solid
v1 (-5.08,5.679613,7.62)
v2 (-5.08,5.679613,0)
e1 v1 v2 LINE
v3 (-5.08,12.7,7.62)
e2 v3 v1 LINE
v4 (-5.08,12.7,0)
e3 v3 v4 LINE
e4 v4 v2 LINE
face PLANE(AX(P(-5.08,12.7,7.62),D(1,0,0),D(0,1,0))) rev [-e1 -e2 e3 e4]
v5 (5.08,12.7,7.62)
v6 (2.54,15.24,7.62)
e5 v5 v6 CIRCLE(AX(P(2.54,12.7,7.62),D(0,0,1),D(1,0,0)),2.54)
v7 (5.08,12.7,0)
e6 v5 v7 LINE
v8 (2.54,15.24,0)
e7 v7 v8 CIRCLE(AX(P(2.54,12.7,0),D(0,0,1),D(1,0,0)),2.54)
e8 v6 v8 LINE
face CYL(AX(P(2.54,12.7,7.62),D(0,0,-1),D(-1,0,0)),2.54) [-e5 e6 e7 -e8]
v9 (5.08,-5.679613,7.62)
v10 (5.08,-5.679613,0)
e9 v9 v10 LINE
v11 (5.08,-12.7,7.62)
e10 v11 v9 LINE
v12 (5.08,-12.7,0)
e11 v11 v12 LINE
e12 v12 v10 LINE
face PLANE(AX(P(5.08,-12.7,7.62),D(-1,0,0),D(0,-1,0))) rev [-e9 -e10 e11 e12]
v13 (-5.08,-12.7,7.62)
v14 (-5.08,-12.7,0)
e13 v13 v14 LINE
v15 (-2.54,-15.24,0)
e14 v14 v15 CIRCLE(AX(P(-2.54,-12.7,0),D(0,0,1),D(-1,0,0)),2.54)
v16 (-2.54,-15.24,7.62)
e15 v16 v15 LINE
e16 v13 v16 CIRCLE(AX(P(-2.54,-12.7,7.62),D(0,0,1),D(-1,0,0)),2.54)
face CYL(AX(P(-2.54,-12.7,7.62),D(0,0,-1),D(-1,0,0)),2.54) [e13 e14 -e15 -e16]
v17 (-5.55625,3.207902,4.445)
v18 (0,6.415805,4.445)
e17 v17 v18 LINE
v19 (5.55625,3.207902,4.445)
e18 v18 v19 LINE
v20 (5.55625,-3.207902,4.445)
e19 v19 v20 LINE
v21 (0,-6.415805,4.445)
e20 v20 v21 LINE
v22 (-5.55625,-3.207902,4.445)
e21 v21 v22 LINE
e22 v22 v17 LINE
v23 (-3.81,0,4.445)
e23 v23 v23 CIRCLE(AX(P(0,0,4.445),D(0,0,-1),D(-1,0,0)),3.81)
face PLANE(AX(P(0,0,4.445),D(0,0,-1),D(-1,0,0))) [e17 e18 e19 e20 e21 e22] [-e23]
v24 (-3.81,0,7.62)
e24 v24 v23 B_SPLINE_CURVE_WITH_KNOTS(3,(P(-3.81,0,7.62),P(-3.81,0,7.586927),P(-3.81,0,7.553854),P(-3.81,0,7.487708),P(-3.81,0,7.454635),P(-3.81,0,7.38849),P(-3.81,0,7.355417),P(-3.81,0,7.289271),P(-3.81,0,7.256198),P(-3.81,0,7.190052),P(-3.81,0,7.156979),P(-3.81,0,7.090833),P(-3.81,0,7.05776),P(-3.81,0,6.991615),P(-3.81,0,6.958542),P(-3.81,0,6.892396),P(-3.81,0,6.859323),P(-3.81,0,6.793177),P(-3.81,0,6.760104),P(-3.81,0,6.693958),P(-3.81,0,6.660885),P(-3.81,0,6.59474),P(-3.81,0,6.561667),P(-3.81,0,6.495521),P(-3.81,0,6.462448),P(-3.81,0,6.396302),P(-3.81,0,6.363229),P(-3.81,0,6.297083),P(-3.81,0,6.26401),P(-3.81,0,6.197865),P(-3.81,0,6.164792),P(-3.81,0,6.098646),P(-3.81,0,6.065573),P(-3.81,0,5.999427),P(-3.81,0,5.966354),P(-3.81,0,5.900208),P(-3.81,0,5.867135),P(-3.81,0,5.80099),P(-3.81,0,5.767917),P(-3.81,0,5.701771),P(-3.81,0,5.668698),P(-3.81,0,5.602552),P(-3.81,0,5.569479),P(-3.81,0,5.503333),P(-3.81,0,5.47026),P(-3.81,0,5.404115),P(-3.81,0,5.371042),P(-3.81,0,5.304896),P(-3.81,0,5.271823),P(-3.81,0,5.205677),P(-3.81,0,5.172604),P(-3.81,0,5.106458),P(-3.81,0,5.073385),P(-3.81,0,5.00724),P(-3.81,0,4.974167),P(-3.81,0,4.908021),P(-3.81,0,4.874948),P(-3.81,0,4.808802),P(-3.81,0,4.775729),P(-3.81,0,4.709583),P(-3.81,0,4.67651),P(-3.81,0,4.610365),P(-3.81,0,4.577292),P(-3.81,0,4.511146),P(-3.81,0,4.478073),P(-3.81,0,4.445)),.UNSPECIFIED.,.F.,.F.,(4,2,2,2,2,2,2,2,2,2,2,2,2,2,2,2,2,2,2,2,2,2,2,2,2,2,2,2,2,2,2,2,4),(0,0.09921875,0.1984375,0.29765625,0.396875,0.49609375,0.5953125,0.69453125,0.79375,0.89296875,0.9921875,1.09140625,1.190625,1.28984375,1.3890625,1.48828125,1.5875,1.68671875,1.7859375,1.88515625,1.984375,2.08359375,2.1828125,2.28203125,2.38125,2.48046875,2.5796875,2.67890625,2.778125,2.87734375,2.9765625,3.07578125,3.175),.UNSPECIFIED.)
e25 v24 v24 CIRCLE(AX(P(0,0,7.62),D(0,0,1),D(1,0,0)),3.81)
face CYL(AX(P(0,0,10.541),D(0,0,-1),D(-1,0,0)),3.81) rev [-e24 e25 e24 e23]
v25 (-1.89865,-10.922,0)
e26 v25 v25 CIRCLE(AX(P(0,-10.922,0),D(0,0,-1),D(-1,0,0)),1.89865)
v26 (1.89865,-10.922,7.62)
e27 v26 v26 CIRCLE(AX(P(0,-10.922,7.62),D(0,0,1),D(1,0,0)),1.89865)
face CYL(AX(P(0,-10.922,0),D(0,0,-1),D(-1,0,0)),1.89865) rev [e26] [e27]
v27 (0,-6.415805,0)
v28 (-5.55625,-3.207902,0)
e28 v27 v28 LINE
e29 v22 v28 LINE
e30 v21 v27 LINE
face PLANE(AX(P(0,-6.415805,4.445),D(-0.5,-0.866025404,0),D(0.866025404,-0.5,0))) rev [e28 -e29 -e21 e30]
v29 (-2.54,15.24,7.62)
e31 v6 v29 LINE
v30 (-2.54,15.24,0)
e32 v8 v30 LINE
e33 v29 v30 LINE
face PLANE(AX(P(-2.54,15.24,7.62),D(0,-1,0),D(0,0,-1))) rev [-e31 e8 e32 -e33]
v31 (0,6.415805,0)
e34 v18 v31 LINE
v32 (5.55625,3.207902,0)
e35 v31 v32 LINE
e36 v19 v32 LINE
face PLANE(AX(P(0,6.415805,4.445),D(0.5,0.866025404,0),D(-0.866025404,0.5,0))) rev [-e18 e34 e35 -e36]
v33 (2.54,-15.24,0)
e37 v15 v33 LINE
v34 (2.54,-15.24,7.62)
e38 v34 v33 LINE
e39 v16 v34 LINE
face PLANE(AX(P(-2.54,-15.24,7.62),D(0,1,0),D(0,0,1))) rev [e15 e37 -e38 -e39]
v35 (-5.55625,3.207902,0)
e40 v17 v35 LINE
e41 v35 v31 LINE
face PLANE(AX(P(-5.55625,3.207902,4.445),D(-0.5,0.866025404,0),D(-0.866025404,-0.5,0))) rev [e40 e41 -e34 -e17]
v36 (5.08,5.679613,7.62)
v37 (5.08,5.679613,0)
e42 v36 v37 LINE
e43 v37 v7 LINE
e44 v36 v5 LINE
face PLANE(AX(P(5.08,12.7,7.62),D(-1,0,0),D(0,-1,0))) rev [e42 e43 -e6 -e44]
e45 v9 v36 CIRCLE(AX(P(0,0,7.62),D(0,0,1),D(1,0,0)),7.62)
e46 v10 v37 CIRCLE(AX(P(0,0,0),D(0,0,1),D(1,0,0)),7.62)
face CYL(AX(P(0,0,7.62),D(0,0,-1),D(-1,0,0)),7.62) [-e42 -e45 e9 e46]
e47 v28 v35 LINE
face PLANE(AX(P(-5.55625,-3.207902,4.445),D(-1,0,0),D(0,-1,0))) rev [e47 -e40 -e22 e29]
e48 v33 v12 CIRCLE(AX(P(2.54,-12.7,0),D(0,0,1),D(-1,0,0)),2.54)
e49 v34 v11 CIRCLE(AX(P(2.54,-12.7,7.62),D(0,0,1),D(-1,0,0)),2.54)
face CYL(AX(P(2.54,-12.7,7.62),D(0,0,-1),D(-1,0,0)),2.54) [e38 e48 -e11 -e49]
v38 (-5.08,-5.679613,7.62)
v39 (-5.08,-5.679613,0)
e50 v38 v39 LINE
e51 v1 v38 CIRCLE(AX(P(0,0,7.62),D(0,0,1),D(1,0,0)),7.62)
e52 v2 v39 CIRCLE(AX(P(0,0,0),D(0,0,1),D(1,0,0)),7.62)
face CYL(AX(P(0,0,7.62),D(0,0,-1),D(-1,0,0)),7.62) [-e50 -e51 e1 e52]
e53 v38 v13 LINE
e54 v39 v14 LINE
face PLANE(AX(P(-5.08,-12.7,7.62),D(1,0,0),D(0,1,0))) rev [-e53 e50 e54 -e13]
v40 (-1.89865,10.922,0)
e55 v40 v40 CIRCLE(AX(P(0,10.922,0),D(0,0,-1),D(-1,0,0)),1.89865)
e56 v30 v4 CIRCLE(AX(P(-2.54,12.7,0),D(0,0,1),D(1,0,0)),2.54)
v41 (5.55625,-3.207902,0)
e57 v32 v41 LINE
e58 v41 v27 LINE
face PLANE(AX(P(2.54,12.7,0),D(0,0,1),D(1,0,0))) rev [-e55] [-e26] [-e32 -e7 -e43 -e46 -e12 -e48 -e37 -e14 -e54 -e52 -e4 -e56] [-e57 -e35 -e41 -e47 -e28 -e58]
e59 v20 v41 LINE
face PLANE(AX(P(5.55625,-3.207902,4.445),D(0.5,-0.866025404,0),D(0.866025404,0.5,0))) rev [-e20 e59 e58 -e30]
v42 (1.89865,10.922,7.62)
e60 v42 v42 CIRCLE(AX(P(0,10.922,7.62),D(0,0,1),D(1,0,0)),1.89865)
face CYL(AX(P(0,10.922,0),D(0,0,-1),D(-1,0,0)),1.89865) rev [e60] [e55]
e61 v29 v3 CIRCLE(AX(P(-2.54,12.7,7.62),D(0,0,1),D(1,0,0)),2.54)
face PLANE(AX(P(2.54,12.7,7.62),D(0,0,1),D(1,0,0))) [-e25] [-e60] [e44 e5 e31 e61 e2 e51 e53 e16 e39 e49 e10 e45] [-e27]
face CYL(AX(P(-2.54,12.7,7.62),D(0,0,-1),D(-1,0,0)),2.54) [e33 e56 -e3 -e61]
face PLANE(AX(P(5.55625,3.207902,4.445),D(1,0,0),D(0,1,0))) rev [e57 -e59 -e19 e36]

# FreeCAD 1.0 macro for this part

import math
import FreeCAD as App
import Part
import Sketcher

V = App.Vector
Q = App.Units.Quantity

doc = App.newDocument("Part")
body = doc.addObject("PartDesign::Body", "Body")

# Sketch on XY plane
sketch1 = doc.addObject("Sketcher::SketchObject", "Sketch")
body.addObject(sketch1)
sketch1.AttachmentSupport = (doc.XY_Plane, [""])
sketch1.MapMode = "FlatFace"
sketch1.addGeometry(Part.LineSegment(V(-5.1, 12.7, 0), V(-5.1, 5.7, 0)), False)
sketch1.addGeometry(Part.ArcOfCircle(Part.Circle(V(0, 0, 0), V(0, 0, 1), 7.6), math.radians(132), math.radians(228)), False)
sketch1.addGeometry(Part.LineSegment(V(-5.1, -5.7, 0), V(-5.1, -12.7, 0)), False)
sketch1.addGeometry(Part.ArcOfCircle(Part.Circle(V(-2.5, -12.7, 0), V(0, 0, 1), 2.5), math.radians(-180), math.radians(-90)), False)
sketch1.addGeometry(Part.LineSegment(V(-2.5, -15.2, 0), V(2.5, -15.2, 0)), False)
sketch1.addGeometry(Part.ArcOfCircle(Part.Circle(V(2.5, -12.7, 0), V(0, 0, 1), 2.5), math.radians(-90), math.radians(0)), False)
sketch1.addGeometry(Part.LineSegment(V(5.1, -12.7, 0), V(5.1, -5.7, 0)), False)
sketch1.addGeometry(Part.ArcOfCircle(Part.Circle(V(0, 0, 0), V(0, 0, 1), 7.6), math.radians(-48), math.radians(48)), False)
sketch1.addGeometry(Part.LineSegment(V(5.1, 5.7, 0), V(5.1, 12.7, 0)), False)
sketch1.addGeometry(Part.ArcOfCircle(Part.Circle(V(2.5, 12.7, 0), V(0, 0, 1), 2.5), math.radians(0), math.radians(90)), False)
sketch1.addGeometry(Part.LineSegment(V(2.5, 15.2, 0), V(-2.5, 15.2, 0)), False)
sketch1.addGeometry(Part.ArcOfCircle(Part.Circle(V(-2.5, 12.7, 0), V(0, 0, 1), 2.5), math.radians(90), math.radians(180)), False)
sketch1.addConstraint(Sketcher.Constraint("Coincident", 0, 2, 1, 1))
sketch1.addConstraint(Sketcher.Constraint("Coincident", 1, 2, 2, 1))
sketch1.addConstraint(Sketcher.Constraint("Tangent", 2, 2, 3, 1))
sketch1.addConstraint(Sketcher.Constraint("Tangent", 3, 2, 4, 1))
sketch1.addConstraint(Sketcher.Constraint("Tangent", 4, 2, 5, 1))
sketch1.addConstraint(Sketcher.Constraint("Tangent", 5, 2, 6, 1))
sketch1.addConstraint(Sketcher.Constraint("Coincident", 6, 2, 7, 1))
sketch1.addConstraint(Sketcher.Constraint("Coincident", 7, 2, 8, 1))
sketch1.addConstraint(Sketcher.Constraint("Tangent", 8, 2, 9, 1))
sketch1.addConstraint(Sketcher.Constraint("Tangent", 9, 2, 10, 1))
sketch1.addConstraint(Sketcher.Constraint("Tangent", 10, 2, 11, 1))
sketch1.addConstraint(Sketcher.Constraint("Tangent", 11, 2, 0, 1))
sketch1.addConstraint(Sketcher.Constraint("Vertical", 0))
sketch1.addConstraint(Sketcher.Constraint("Vertical", 2))
sketch1.addConstraint(Sketcher.Constraint("Horizontal", 4))
sketch1.addConstraint(Sketcher.Constraint("Vertical", 6))
sketch1.addConstraint(Sketcher.Constraint("Vertical", 8))
sketch1.addConstraint(Sketcher.Constraint("Horizontal", 10))
sketch1.addConstraint(Sketcher.Constraint("Coincident", 1, 3, -1, 1))
sketch1.addConstraint(Sketcher.Constraint("Coincident", 7, 3, -1, 1))
sketch1.addConstraint(Sketcher.Constraint("Equal", 3, 5))
sketch1.addConstraint(Sketcher.Constraint("Equal", 1, 7))
sketch1.addConstraint(Sketcher.Constraint("Equal", 5, 9))
sketch1.addConstraint(Sketcher.Constraint("Equal", 9, 11))
sketch1.addConstraint(Sketcher.Constraint("Symmetric", 3, 3, 9, 3, -1, 1))
sketch1.addConstraint(Sketcher.Constraint("Horizontal", 1, 2, 6, 2))
sketch1.addConstraint(Sketcher.Constraint("Horizontal", 0, 2, 7, 2))
sketch1.addConstraint(Sketcher.Constraint("Radius", 1, Q("0.3 in")))
sketch1.addConstraint(Sketcher.Constraint("Radius", 3, Q("0.1 in")))
sketch1.addConstraint(Sketcher.Constraint("DistanceX", 4, 1, 4, 2, Q("0.2 in")))
sketch1.addConstraint(Sketcher.Constraint("DistanceY", 5, 3, 9, 3, Q("1 in")))
pad1 = doc.addObject("PartDesign::Pad", "Pad")
body.addObject(pad1)
pad1.Profile = sketch1
pad1.Length = Q("0.3 in")

# Sketch on XY plane
sketch2 = doc.addObject("Sketcher::SketchObject", "Sketch001")
body.addObject(sketch2)
sketch2.AttachmentSupport = (doc.XY_Plane, [""])
sketch2.MapMode = "FlatFace"
sketch2.addGeometry(Part.LineSegment(V(-6, 3, 0), V(0, 6, 0)), False)
sketch2.addGeometry(Part.LineSegment(V(0, 6, 0), V(6, 3, 0)), False)
sketch2.addGeometry(Part.LineSegment(V(6, 3, 0), V(6, -3, 0)), False)
sketch2.addGeometry(Part.LineSegment(V(6, -3, 0), V(0, -6, 0)), False)
sketch2.addGeometry(Part.LineSegment(V(0, -6, 0), V(-6, -3, 0)), False)
sketch2.addGeometry(Part.LineSegment(V(-6, -3, 0), V(-6, 3, 0)), False)
sketch2.addConstraint(Sketcher.Constraint("Coincident", 0, 2, 1, 1))
sketch2.addConstraint(Sketcher.Constraint("Coincident", 1, 2, 2, 1))
sketch2.addConstraint(Sketcher.Constraint("Coincident", 2, 2, 3, 1))
sketch2.addConstraint(Sketcher.Constraint("Coincident", 3, 2, 4, 1))
sketch2.addConstraint(Sketcher.Constraint("Coincident", 4, 2, 5, 1))
sketch2.addConstraint(Sketcher.Constraint("Coincident", 5, 2, 0, 1))
sketch2.addConstraint(Sketcher.Constraint("Vertical", 2))
sketch2.addConstraint(Sketcher.Constraint("Vertical", 5))
sketch2.addConstraint(Sketcher.Constraint("Symmetric", 0, 2, 3, 2, -1, 1))
sketch2.addConstraint(Sketcher.Constraint("Symmetric", 1, 2, 4, 2, -1, 1))
sketch2.addConstraint(Sketcher.Constraint("PointOnObject", 0, 2, -2))
sketch2.addConstraint(Sketcher.Constraint("Parallel", 0, 3))
sketch2.addConstraint(Sketcher.Constraint("Horizontal", 2, 2, 4, 2))
sketch2.addConstraint(Sketcher.Constraint("Angle", 0, Q("30 deg")))
sketch2.addConstraint(Sketcher.Constraint("DistanceX", -1, 1, 1, 2, Q("0.21875 in")))
sketch2.addConstraint(Sketcher.Constraint("DistanceY", 2, 2, 2, 1, Q("6.415805 mm")))
pocket1 = doc.addObject("PartDesign::Pocket", "Pocket")
body.addObject(pocket1)
pocket1.Profile = sketch2
pocket1.Length = Q("0.175 in")
pocket1.Reversed = True

# Sketch on XY plane
sketch3 = doc.addObject("Sketcher::SketchObject", "Sketch002")
body.addObject(sketch3)
sketch3.AttachmentSupport = (doc.XY_Plane, [""])
sketch3.MapMode = "FlatFace"
sketch3.AttachmentOffset = App.Placement(V(0, 0, 0.175 * 25.4), App.Rotation())
sketch3.addGeometry(Part.Circle(V(0, 0, 0), V(0, 0, 1), 3.8), False)
sketch3.addConstraint(Sketcher.Constraint("Coincident", 0, 3, -1, 1))
sketch3.addConstraint(Sketcher.Constraint("Diameter", 0, Q("0.3 in")))
pocket2 = doc.addObject("PartDesign::Pocket", "Pocket001")
body.addObject(pocket2)
pocket2.Profile = sketch3
pocket2.Length = Q("0.24 in")
pocket2.Reversed = True

# Sketch on XY plane
sketch4 = doc.addObject("Sketcher::SketchObject", "Sketch003")
body.addObject(sketch4)
sketch4.AttachmentSupport = (doc.XY_Plane, [""])
sketch4.MapMode = "FlatFace"
sketch4.addGeometry(Part.Circle(V(0, 10.9, 0), V(0, 0, 1), 1.9), False)
sketch4.addGeometry(Part.Circle(V(0, -10.9, 0), V(0, 0, 1), 1.9), False)
sketch4.addConstraint(Sketcher.Constraint("Equal", 0, 1))
sketch4.addConstraint(Sketcher.Constraint("Symmetric", 0, 3, 1, 3, -1, 1))
sketch4.addConstraint(Sketcher.Constraint("PointOnObject", 0, 3, -2))
sketch4.addConstraint(Sketcher.Constraint("Diameter", 0, Q("0.1495 in")))
sketch4.addConstraint(Sketcher.Constraint("DistanceY", -1, 1, 0, 3, Q("0.43 in")))
doc.recompute()
hole = doc.addObject("PartDesign::Hole", "Hole")
body.addObject(hole)
hole.Profile = sketch4
hole.ThreadType = "None"
hole.Diameter = Q("0.1495 in")
hole.DepthType = "Dimension"
hole.Depth = Q("1 in")
hole.DrillPoint = "Angled"
hole.DrillPointAngle = 118
hole.Reversed = True

doc.recompute()
